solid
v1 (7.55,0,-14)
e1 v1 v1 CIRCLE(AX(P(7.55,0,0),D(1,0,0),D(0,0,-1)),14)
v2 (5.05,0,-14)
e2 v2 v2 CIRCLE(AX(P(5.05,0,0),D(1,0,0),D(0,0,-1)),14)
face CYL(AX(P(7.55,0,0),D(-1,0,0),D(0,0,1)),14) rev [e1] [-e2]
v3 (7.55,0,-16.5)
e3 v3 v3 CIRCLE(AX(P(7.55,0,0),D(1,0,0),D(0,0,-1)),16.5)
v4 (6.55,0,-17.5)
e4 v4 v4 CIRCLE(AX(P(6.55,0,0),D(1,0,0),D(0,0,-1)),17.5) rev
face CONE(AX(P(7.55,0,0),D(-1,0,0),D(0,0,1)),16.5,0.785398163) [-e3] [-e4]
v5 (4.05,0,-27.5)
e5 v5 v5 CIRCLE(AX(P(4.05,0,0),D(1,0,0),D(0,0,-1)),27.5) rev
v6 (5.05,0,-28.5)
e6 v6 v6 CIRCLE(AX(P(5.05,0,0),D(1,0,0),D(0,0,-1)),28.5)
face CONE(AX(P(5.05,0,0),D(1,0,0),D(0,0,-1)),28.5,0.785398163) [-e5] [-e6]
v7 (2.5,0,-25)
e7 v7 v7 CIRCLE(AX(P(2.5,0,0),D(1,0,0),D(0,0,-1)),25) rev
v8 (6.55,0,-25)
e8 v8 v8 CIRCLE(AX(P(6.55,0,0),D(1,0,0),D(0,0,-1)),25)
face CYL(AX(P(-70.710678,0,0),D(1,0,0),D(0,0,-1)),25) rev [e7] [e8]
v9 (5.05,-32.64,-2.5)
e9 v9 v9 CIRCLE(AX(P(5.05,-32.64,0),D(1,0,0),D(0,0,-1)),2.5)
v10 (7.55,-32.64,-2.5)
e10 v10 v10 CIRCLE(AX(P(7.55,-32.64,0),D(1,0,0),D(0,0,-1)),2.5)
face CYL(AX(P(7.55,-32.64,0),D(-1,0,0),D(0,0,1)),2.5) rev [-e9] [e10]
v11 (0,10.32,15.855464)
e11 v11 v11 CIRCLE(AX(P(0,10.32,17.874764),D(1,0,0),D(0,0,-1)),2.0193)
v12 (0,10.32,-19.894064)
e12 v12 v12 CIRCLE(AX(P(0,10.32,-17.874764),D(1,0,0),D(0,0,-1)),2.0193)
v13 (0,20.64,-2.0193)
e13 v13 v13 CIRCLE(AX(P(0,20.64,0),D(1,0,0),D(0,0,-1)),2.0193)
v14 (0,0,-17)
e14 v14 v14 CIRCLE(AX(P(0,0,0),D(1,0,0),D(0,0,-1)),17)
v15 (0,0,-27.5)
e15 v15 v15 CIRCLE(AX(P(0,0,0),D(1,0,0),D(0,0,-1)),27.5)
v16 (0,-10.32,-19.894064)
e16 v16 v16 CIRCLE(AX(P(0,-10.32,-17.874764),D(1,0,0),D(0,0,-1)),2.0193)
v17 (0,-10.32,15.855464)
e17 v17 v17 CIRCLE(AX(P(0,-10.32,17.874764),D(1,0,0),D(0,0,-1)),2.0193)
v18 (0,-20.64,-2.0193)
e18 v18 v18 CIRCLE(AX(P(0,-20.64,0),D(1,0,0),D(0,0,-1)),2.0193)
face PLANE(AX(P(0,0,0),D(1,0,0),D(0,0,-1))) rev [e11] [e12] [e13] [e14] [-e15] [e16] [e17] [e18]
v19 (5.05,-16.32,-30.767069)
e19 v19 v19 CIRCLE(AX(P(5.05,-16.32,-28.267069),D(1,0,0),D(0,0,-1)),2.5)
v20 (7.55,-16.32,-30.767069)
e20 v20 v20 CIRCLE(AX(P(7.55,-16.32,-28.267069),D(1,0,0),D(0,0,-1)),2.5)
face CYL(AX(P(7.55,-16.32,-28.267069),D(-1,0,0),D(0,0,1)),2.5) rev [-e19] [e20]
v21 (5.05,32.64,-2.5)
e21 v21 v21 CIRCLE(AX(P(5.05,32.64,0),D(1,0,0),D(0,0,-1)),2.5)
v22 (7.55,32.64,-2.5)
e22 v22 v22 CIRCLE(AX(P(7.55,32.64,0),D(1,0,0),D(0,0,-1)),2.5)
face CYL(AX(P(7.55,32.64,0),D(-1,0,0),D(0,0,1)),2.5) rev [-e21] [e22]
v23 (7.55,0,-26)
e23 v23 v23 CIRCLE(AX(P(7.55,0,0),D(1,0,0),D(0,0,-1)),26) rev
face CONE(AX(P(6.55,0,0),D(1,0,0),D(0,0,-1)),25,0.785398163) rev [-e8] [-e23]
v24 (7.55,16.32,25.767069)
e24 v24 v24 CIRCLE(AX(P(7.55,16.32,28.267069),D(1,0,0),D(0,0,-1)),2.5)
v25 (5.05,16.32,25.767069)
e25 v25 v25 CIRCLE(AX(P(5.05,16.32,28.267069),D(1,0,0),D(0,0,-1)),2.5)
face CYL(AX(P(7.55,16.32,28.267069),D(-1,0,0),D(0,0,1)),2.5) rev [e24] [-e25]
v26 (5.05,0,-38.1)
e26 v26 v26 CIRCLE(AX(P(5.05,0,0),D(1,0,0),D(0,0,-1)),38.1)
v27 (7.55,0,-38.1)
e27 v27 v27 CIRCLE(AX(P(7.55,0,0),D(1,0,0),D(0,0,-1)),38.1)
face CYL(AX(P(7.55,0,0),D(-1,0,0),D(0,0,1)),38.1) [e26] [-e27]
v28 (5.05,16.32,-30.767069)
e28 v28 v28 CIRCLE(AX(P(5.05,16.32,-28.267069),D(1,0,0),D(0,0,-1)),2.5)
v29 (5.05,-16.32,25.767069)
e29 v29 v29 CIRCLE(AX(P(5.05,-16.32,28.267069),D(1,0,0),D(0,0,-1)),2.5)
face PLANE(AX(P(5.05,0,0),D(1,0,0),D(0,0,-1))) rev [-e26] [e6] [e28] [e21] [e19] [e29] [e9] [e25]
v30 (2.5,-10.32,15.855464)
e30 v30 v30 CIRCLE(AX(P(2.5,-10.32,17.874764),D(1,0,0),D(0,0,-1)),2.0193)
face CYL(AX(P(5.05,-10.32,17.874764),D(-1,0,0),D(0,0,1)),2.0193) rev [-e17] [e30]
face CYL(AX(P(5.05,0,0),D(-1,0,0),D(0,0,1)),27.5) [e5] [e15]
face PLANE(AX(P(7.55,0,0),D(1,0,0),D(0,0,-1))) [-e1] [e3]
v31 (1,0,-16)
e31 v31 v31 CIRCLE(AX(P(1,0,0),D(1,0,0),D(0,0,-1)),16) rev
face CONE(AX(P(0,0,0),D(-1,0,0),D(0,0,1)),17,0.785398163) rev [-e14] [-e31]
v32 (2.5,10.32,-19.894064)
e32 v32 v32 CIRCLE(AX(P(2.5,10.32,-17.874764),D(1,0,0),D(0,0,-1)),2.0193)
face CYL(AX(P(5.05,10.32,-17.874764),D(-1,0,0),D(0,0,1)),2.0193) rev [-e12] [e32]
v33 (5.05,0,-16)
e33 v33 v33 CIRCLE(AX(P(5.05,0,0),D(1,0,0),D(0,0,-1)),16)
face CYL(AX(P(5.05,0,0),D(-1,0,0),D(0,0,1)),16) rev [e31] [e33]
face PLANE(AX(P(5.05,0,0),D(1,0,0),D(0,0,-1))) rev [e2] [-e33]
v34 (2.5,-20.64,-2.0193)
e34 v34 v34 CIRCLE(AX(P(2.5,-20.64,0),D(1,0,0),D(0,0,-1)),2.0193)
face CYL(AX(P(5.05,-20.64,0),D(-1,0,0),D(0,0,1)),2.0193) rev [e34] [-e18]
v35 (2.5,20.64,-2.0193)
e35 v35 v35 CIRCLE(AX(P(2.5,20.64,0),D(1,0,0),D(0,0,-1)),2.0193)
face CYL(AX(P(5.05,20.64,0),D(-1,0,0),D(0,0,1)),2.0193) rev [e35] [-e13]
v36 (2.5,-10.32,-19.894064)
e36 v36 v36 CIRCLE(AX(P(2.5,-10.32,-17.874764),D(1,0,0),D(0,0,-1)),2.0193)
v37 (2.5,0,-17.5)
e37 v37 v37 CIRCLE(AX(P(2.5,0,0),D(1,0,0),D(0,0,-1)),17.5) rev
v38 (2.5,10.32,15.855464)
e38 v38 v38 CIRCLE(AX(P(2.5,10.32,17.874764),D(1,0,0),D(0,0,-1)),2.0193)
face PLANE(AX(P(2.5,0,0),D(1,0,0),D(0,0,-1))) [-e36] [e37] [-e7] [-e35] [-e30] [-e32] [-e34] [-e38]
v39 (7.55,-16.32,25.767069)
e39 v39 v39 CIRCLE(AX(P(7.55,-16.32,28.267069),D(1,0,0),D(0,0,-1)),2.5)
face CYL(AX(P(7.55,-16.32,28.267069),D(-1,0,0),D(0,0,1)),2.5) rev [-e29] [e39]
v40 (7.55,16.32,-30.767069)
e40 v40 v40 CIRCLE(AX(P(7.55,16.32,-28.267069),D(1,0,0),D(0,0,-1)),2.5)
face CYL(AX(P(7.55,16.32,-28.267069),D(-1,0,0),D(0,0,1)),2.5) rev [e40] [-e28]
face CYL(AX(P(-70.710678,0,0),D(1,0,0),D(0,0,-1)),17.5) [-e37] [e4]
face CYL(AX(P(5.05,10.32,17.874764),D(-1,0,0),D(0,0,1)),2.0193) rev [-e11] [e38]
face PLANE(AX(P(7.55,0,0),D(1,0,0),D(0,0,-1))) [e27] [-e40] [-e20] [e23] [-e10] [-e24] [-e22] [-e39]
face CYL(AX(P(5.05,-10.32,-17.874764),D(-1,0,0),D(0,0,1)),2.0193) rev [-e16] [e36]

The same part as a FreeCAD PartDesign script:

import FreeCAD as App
import Part
import Sketcher
from FreeCAD import Vector


def edges_at(feature, points):
    """Names of the edges that pass closest to the given points."""
    edges = feature.Shape.Edges
    near = lambda p: min(range(len(edges)), key=lambda i: edges[i].distToShape(Part.Vertex(*p))[0])
    return sorted({f"Edge{near(p) + 1}" for p in points})

doc = App.newDocument("Part")
body = doc.addObject("PartDesign::Body", "Body")

# Sketch on YZ plane
sketch1 = doc.addObject("Sketcher::SketchObject", "Sketch")
body.addObject(sketch1)
sketch1.AttachmentSupport = (doc.YZ_Plane, [""])
sketch1.MapMode = "FlatFace"
sketch1.addGeometry([
    Part.Circle(Vector(0, 0, 0), Vector(0, 0, 1), 27.5),  # 0
    Part.Circle(Vector(-10.32, 17.874764, 0), Vector(0, 0, 1), 2.0193),  # 1
    Part.Circle(Vector(-20.64, 0, 0), Vector(0, 0, 1), 2.0193),  # 2
    Part.Circle(Vector(0, 0, 0), Vector(0, 0, 1), 16),  # 3
    Part.Circle(Vector(-10.32, -17.874764, 0), Vector(0, 0, 1), 2.0193),  # 4
    Part.Circle(Vector(10.32, 17.874764, 0), Vector(0, 0, 1), 2.0193),  # 5
    Part.Circle(Vector(10.32, -17.874764, 0), Vector(0, 0, 1), 2.0193),  # 6
    Part.Circle(Vector(20.64, 0, 0), Vector(0, 0, 1), 2.0193),  # 7
], False)
sketch1.addConstraint([
    Sketcher.Constraint("Coincident", 0, 3, -1, 1),
    Sketcher.Constraint("Coincident", 3, 3, -1, 1),
    Sketcher.Constraint("Equal", 1, 2),
    Sketcher.Constraint("Equal", 2, 4),
    Sketcher.Constraint("Equal", 4, 5),
    Sketcher.Constraint("Equal", 5, 6),
    Sketcher.Constraint("Equal", 6, 7),
    Sketcher.Constraint("Symmetric", 4, 3, 5, 3, -1, 1),
    Sketcher.Constraint("Symmetric", 1, 3, 6, 3, -1, 1),
    Sketcher.Constraint("Symmetric", 2, 3, 7, 3, -1, 1),
    Sketcher.Constraint("Symmetric", 1, 3, 5, 3, -2),
    Sketcher.Constraint("PointOnObject", 2, 3, -1),
    Sketcher.Constraint("Diameter", 0, 55.0),
    Sketcher.Constraint("Diameter", 3, 32.0),
    Sketcher.Constraint("Diameter", 1, 4.0386),
    Sketcher.Constraint("DistanceX", 1, 3, -1, 1, 10.32),
    Sketcher.Constraint("DistanceX", 2, 3, -1, 1, 20.64),
    Sketcher.Constraint("DistanceY", 4, 3, 1, 3, 35.749529),
])
pad1 = doc.addObject("PartDesign::Pad", "Pad")
body.addObject(pad1)
pad1.Profile = sketch1
pad1.Length = 5.05

# Sketch on YZ plane
sketch2 = doc.addObject("Sketcher::SketchObject", "Sketch001")
body.addObject(sketch2)
sketch2.AttachmentSupport = (doc.YZ_Plane, [""])
sketch2.MapMode = "FlatFace"
sketch2.AttachmentOffset = App.Placement(Vector(0, 0, 5.05), App.Rotation())
sketch2.addGeometry([
    Part.Circle(Vector(0, 0, 0), Vector(0, 0, 1), 38.1),  # 0
    Part.Circle(Vector(-16.32, 28.267069, 0), Vector(0, 0, 1), 2.5),  # 1
    Part.Circle(Vector(-10.32, 17.874764, 0), Vector(0, 0, 1), 2.0193),  # 2
    Part.Circle(Vector(-32.64, 0, 0), Vector(0, 0, 1), 2.5),  # 3
    Part.Circle(Vector(-20.64, 0, 0), Vector(0, 0, 1), 2.0193),  # 4
    Part.Circle(Vector(-10.32, -17.874764, 0), Vector(0, 0, 1), 2.0193),  # 5
    Part.Circle(Vector(-16.32, -28.267069, 0), Vector(0, 0, 1), 2.5),  # 6
    Part.Circle(Vector(16.32, 28.267069, 0), Vector(0, 0, 1), 2.5),  # 7
    Part.Circle(Vector(10.32, 17.874764, 0), Vector(0, 0, 1), 2.0193),  # 8
    Part.Circle(Vector(0, 0, 0), Vector(0, 0, 1), 14),  # 9
    Part.Circle(Vector(10.32, -17.874764, 0), Vector(0, 0, 1), 2.0193),  # 10
    Part.Circle(Vector(16.32, -28.267069, 0), Vector(0, 0, 1), 2.5),  # 11
    Part.Circle(Vector(20.64, 0, 0), Vector(0, 0, 1), 2.0193),  # 12
    Part.Circle(Vector(32.64, 0, 0), Vector(0, 0, 1), 2.5),  # 13
], False)
sketch2.addConstraint([
    Sketcher.Constraint("Coincident", 0, 3, -1, 1),
    Sketcher.Constraint("Coincident", 9, 3, -1, 1),
    Sketcher.Constraint("Equal", 1, 3),
    Sketcher.Constraint("Equal", 2, 4),
    Sketcher.Constraint("Equal", 4, 5),
    Sketcher.Constraint("Equal", 3, 6),
    Sketcher.Constraint("Equal", 6, 7),
    Sketcher.Constraint("Equal", 5, 8),
    Sketcher.Constraint("Equal", 8, 10),
    Sketcher.Constraint("Equal", 7, 11),
    Sketcher.Constraint("Equal", 10, 12),
    Sketcher.Constraint("Equal", 11, 13),
    Sketcher.Constraint("Symmetric", 6, 3, 7, 3, -1, 1),
    Sketcher.Constraint("Symmetric", 5, 3, 8, 3, -1, 1),
    Sketcher.Constraint("Symmetric", 2, 3, 10, 3, -1, 1),
    Sketcher.Constraint("Symmetric", 1, 3, 11, 3, -1, 1),
    Sketcher.Constraint("Symmetric", 4, 3, 12, 3, -1, 1),
    Sketcher.Constraint("Symmetric", 3, 3, 13, 3, -1, 1),
    Sketcher.Constraint("Symmetric", 1, 3, 7, 3, -2),
    Sketcher.Constraint("Symmetric", 2, 3, 8, 3, -2),
    Sketcher.Constraint("PointOnObject", 3, 3, -1),
    Sketcher.Constraint("PointOnObject", 4, 3, -1),
    Sketcher.Constraint("Diameter", 1, 5.0),
    Sketcher.Constraint("Diameter", 9, 28.0),
    Sketcher.Constraint("Diameter", 0, 76.2),
    Sketcher.Constraint("DistanceX", 1, 3, 2, 3, 6.0),
    Sketcher.Constraint("DistanceX", 3, 3, 4, 3, 12.0),
    Sketcher.Constraint("Diameter", 2, 4.0386),
    Sketcher.Constraint("DistanceX", 1, 3, -1, 1, 16.32),
    Sketcher.Constraint("DistanceX", 3, 3, -1, 1, 32.64),
    Sketcher.Constraint("DistanceY", -1, 1, 1, 3, 28.267069),
    Sketcher.Constraint("DistanceY", 5, 3, 2, 3, 35.749529),
])
pad2 = doc.addObject("PartDesign::Pad", "Pad001")
body.addObject(pad2)
pad2.Profile = sketch2
pad2.Length = 2.5

# Sketch on YZ plane
sketch3 = doc.addObject("Sketcher::SketchObject", "Sketch002")
body.addObject(sketch3)
sketch3.AttachmentSupport = (doc.YZ_Plane, [""])
sketch3.MapMode = "FlatFace"
sketch3.AttachmentOffset = App.Placement(Vector(0, 0, 7.55), App.Rotation())
sketch3.addGeometry([
    Part.Circle(Vector(0, 0, 0), Vector(0, 0, 1), 25),
    Part.Circle(Vector(0, 0, 0), Vector(0, 0, 1), 17.5),
], False)
sketch3.addConstraint([
    Sketcher.Constraint("Coincident", 0, 3, -1, 1),
    Sketcher.Constraint("Coincident", 1, 3, -1, 1),
    Sketcher.Constraint("Diameter", 0, 50.0),
    Sketcher.Constraint("Diameter", 1, 35.0),
])
pocket1 = doc.addObject("PartDesign::Pocket", "Pocket")
body.addObject(pocket1)
pocket1.Profile = sketch3
pocket1.Length = 5.05
doc.recompute()

chamfer = doc.addObject("PartDesign::Chamfer", "Chamfer")
body.addObject(chamfer)
chamfer.Base = (pocket1, edges_at(pocket1, [
    (5.05, 0, 27.5),
    (7.55, 0, 25),
    (7.55, 0, 17.5),
    (0, 0, 16),
]))
chamfer.Size = 1

doc.recompute()
